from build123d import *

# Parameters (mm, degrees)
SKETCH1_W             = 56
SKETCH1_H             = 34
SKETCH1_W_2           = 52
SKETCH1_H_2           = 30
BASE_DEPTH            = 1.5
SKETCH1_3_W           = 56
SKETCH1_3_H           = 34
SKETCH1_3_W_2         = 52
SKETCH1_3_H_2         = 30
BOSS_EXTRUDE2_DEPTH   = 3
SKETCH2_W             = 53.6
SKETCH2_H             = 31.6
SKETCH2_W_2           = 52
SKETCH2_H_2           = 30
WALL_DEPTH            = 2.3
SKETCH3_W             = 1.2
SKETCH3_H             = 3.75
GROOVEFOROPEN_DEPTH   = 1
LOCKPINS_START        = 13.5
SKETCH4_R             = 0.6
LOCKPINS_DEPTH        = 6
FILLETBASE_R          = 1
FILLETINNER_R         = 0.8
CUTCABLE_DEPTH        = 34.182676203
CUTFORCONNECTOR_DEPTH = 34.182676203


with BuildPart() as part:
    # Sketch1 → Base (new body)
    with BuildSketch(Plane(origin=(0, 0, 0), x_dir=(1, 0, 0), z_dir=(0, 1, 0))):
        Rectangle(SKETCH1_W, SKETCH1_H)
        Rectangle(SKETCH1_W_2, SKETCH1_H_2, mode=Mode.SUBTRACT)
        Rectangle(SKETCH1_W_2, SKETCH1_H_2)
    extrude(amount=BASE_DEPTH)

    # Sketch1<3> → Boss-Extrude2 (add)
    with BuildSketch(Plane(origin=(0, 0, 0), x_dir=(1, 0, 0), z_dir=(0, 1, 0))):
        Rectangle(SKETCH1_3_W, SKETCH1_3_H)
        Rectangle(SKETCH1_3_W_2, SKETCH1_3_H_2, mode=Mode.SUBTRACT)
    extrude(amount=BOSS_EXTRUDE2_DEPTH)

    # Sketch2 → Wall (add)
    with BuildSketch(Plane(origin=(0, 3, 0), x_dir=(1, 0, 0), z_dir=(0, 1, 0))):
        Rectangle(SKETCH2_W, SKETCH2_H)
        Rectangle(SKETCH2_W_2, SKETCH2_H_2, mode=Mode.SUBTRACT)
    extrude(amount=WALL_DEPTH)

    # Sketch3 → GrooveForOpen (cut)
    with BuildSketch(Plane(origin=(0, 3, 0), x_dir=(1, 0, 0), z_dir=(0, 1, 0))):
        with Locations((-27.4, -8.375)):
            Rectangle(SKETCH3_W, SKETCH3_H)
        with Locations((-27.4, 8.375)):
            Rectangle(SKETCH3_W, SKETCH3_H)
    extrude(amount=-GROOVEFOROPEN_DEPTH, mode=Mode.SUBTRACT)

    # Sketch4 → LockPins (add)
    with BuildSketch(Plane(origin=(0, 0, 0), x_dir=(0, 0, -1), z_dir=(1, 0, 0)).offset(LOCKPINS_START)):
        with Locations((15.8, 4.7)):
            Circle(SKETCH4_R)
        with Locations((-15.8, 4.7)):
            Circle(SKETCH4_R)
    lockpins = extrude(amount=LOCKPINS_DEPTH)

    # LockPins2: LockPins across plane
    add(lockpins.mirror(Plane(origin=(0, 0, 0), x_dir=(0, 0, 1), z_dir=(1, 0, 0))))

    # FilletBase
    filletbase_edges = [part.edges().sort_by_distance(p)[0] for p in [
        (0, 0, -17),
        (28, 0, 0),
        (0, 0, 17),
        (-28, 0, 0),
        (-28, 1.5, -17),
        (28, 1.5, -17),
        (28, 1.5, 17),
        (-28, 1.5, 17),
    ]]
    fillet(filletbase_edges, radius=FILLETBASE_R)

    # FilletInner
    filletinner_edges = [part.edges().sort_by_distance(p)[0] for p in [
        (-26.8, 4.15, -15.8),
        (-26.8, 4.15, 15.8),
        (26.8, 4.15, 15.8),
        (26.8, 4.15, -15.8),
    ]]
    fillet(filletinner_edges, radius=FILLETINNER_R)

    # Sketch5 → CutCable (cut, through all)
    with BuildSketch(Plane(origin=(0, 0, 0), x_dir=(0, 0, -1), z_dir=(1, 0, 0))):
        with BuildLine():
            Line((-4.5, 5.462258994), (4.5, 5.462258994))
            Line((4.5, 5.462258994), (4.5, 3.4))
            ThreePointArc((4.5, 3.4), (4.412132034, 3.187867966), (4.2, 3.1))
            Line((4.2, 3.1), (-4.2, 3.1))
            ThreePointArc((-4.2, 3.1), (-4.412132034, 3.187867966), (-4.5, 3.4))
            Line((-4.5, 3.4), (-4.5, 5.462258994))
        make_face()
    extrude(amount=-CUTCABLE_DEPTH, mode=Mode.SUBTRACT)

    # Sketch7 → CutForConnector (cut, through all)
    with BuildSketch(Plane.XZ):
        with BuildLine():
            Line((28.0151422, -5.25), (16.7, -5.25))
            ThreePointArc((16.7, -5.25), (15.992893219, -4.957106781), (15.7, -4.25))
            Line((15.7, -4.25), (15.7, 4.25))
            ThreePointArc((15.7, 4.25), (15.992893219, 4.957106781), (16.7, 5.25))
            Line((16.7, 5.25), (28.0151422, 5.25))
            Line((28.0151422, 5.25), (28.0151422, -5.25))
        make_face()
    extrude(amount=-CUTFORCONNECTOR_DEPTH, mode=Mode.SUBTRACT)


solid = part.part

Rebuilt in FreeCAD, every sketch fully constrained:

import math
import FreeCAD as App
import Part
import Sketcher

V = App.Vector


def edges_at(feature, points):
    """Names of the edges that pass closest to the given points."""
    edges = feature.Shape.Edges
    near = lambda p: min(range(len(edges)), key=lambda i: edges[i].distToShape(Part.Vertex(*p))[0])
    return sorted({f"Edge{near(p) + 1}" for p in points})


def add_polygon(sketch, points):
    """Adds a closed chain of lines whose ends are joined by coincident constraints."""
    first, n = sketch.GeometryCount, len(points)
    for a, b in zip(points, points[1:] + points[:1]):
        sketch.addGeometry(Part.LineSegment(App.Vector(*a, 0), App.Vector(*b, 0)), False)
    for i in range(n):
        sketch.addConstraint(Sketcher.Constraint("Coincident", first + i, 2, first + (i + 1) % n, 1))

doc = App.newDocument("Part")
params = doc.addObject("Spreadsheet::Sheet", "Params")
for row, (alias, value) in enumerate([
    ("sketch1_width", "56 mm"),
    ("sketch1_height", "34 mm"),
    ("pad1_length", "1.5 mm"),
    ("sketch2_width", "56 mm"),
    ("sketch2_width2", "52 mm"),
    ("sketch2_height", "34 mm"),
    ("sketch2_height2", "30 mm"),
    ("pad2_length", "3 mm"),
    ("sketch3_width", "52 mm"),
    ("sketch3_height", "30 mm"),
    ("sketch3_width2", "53.6 mm"),
    ("sketch3_height2", "31.6 mm"),
    ("pad3_length", "2.3 mm"),
    ("sketch4_width", "1.2 mm"),
    ("sketch4_height", "3.75 mm"),
    ("pocket1_length", "1 mm"),
    ("sketch5_diameter", "1.2 mm"),
    ("pad4_length", "6 mm"),
    ("fillet_radius", "1 mm"),
    ("fillet2_radius", "0.8 mm"),
    ("sketch6_radius", "0.3 mm"),
    ("sketch6_height", "9 mm"),
    ("sketch7_radius", "1 mm"),
    ("sketch7_height", "10.5 mm"),
], start=1):
    params.set(f"A{row}", alias)
    params.set(f"B{row}", "=" + value)
    params.setAlias(f"B{row}", alias)

body = doc.addObject("PartDesign::Body", "Body")

sketch1 = doc.addObject("Sketcher::SketchObject", "Sketch")
body.addObject(sketch1)
sketch1.AttachmentSupport = (doc.XZ_Plane, [""])
sketch1.MapMode = "FlatFace"
add_polygon(sketch1, [(-28, -17), (-28, 17), (28, 17), (28, -17)])
sketch1.addConstraint(Sketcher.Constraint("Vertical", 0))
sketch1.addConstraint(Sketcher.Constraint("Horizontal", 1))
sketch1.addConstraint(Sketcher.Constraint("Vertical", 2))
sketch1.addConstraint(Sketcher.Constraint("Horizontal", 3))
sketch1.addConstraint(Sketcher.Constraint("Symmetric", 0, 2, 2, 2, -1, 1))
sketch1.addConstraint(Sketcher.Constraint("DistanceX", 1, 1, 1, 2, 56.0))
sketch1.addConstraint(Sketcher.Constraint("DistanceY", 0, 1, 0, 2, 34.0))
sketch1.setExpression("Constraints[9]", "Params.sketch1_width")
sketch1.setExpression("Constraints[10]", "Params.sketch1_height")
pad1 = doc.addObject("PartDesign::Pad", "Pad")
body.addObject(pad1)
pad1.Profile = sketch1
pad1.setExpression("Length", "Params.pad1_length")
pad1.Reversed = True

sketch2 = doc.addObject("Sketcher::SketchObject", "Sketch001")
body.addObject(sketch2)
sketch2.AttachmentSupport = (doc.XZ_Plane, [""])
sketch2.MapMode = "FlatFace"
add_polygon(sketch2, [(-28, -17), (-28, 17), (28, 17), (28, -17)])
add_polygon(sketch2, [(26, 15), (-26, 15), (-26, -15), (26, -15)])
sketch2.addConstraint(Sketcher.Constraint("Vertical", 0))
sketch2.addConstraint(Sketcher.Constraint("Horizontal", 1))
sketch2.addConstraint(Sketcher.Constraint("Vertical", 2))
sketch2.addConstraint(Sketcher.Constraint("Horizontal", 3))
sketch2.addConstraint(Sketcher.Constraint("Horizontal", 4))
sketch2.addConstraint(Sketcher.Constraint("Vertical", 5))
sketch2.addConstraint(Sketcher.Constraint("Horizontal", 6))
sketch2.addConstraint(Sketcher.Constraint("Vertical", 7))
sketch2.addConstraint(Sketcher.Constraint("Symmetric", 0, 2, 2, 2, -1, 1))
sketch2.addConstraint(Sketcher.Constraint("Symmetric", 4, 2, 6, 2, -1, 1))
sketch2.addConstraint(Sketcher.Constraint("DistanceX", 1, 1, 1, 2, 56.0))
sketch2.addConstraint(Sketcher.Constraint("DistanceX", 4, 2, 4, 1, 52.0))
sketch2.addConstraint(Sketcher.Constraint("DistanceY", 0, 1, 0, 2, 34.0))
sketch2.addConstraint(Sketcher.Constraint("DistanceY", 5, 2, 5, 1, 30.0))
sketch2.setExpression("Constraints[18]", "Params.sketch2_width")
sketch2.setExpression("Constraints[19]", "Params.sketch2_width2")
sketch2.setExpression("Constraints[20]", "Params.sketch2_height")
sketch2.setExpression("Constraints[21]", "Params.sketch2_height2")
pad2 = doc.addObject("PartDesign::Pad", "Pad001")
body.addObject(pad2)
pad2.Profile = sketch2
pad2.setExpression("Length", "Params.pad2_length")
pad2.Reversed = True

sketch3 = doc.addObject("Sketcher::SketchObject", "Sketch002")
body.addObject(sketch3)
sketch3.AttachmentSupport = (doc.XZ_Plane, [""])
sketch3.MapMode = "FlatFace"
sketch3.AttachmentOffset = App.Placement(V(0, 0, -3), App.Rotation())
add_polygon(sketch3, [(-27, -16), (-27, 16), (27, 16), (27, -16)])
add_polygon(sketch3, [(26, 15), (-26, 15), (-26, -15), (26, -15)])
sketch3.addConstraint(Sketcher.Constraint("Vertical", 0))
sketch3.addConstraint(Sketcher.Constraint("Horizontal", 1))
sketch3.addConstraint(Sketcher.Constraint("Vertical", 2))
sketch3.addConstraint(Sketcher.Constraint("Horizontal", 3))
sketch3.addConstraint(Sketcher.Constraint("Horizontal", 4))
sketch3.addConstraint(Sketcher.Constraint("Vertical", 5))
sketch3.addConstraint(Sketcher.Constraint("Horizontal", 6))
sketch3.addConstraint(Sketcher.Constraint("Vertical", 7))
sketch3.addConstraint(Sketcher.Constraint("Symmetric", 0, 2, 2, 2, -1, 1))
sketch3.addConstraint(Sketcher.Constraint("Symmetric", 4, 2, 6, 2, -1, 1))
sketch3.addConstraint(Sketcher.Constraint("DistanceX", 4, 2, 4, 1, 52.0))
sketch3.addConstraint(Sketcher.Constraint("DistanceY", 5, 2, 5, 1, 30.0))
sketch3.addConstraint(Sketcher.Constraint("DistanceX", 1, 1, 1, 2, 53.6))
sketch3.addConstraint(Sketcher.Constraint("DistanceY", 0, 1, 0, 2, 31.6))
sketch3.setExpression("Constraints[18]", "Params.sketch3_width")
sketch3.setExpression("Constraints[19]", "Params.sketch3_height")
sketch3.setExpression("Constraints[20]", "Params.sketch3_width2")
sketch3.setExpression("Constraints[21]", "Params.sketch3_height2")
pad3 = doc.addObject("PartDesign::Pad", "Pad002")
body.addObject(pad3)
pad3.Profile = sketch3
pad3.setExpression("Length", "Params.pad3_length")
pad3.Reversed = True

sketch4 = doc.addObject("Sketcher::SketchObject", "Sketch003")
body.addObject(sketch4)
sketch4.AttachmentSupport = (doc.XZ_Plane, [""])
sketch4.MapMode = "FlatFace"
sketch4.AttachmentOffset = App.Placement(V(0, 0, -3), App.Rotation())
add_polygon(sketch4, [(-28, 6.5), (-28, 10.2), (-26.8, 10.2), (-26.8, 6.5)])
add_polygon(sketch4, [(-28, -10.2), (-28, -6.5), (-26.8, -6.5), (-26.8, -10.2)])
sketch4.addConstraint(Sketcher.Constraint("Vertical", 0))
sketch4.addConstraint(Sketcher.Constraint("Horizontal", 1))
sketch4.addConstraint(Sketcher.Constraint("Vertical", 2))
sketch4.addConstraint(Sketcher.Constraint("Horizontal", 3))
sketch4.addConstraint(Sketcher.Constraint("Vertical", 4))
sketch4.addConstraint(Sketcher.Constraint("Horizontal", 5))
sketch4.addConstraint(Sketcher.Constraint("Vertical", 6))
sketch4.addConstraint(Sketcher.Constraint("Horizontal", 7))
sketch4.addConstraint(Sketcher.Constraint("Symmetric", 3, 2, 4, 2, -1))
sketch4.addConstraint(Sketcher.Constraint("Symmetric", 1, 2, 6, 2, -1))
sketch4.addConstraint(Sketcher.Constraint("DistanceX", 1, 1, 1, 2, 1.2))
sketch4.addConstraint(Sketcher.Constraint("DistanceX", 0, 2, -1, 1, 28.0))
sketch4.addConstraint(Sketcher.Constraint("DistanceY", 4, 2, 3, 2, 13.0))
sketch4.addConstraint(Sketcher.Constraint("DistanceY", 0, 1, 0, 2, 3.75))
sketch4.setExpression("Constraints[18]", "Params.sketch4_width")
sketch4.setExpression("Constraints[21]", "Params.sketch4_height")
pocket1 = doc.addObject("PartDesign::Pocket", "Pocket")
body.addObject(pocket1)
pocket1.Profile = sketch4
pocket1.setExpression("Length", "Params.pocket1_length")
pocket1.Reversed = True

sketch5 = doc.addObject("Sketcher::SketchObject", "Sketch004")
body.addObject(sketch5)
sketch5.AttachmentSupport = (doc.YZ_Plane, [""])
sketch5.MapMode = "FlatFace"
sketch5.AttachmentOffset = App.Placement(V(0, 0, 13.5), App.Rotation())
sketch5.addGeometry(Part.Circle(V(4.7, -15.8, 0), V(0, 0, 1), 0.6), False)
sketch5.addGeometry(Part.Circle(V(4.7, 15.8, 0), V(0, 0, 1), 0.6), False)
sketch5.addConstraint(Sketcher.Constraint("Equal", 0, 1))
sketch5.addConstraint(Sketcher.Constraint("Symmetric", 0, 3, 1, 3, -1))
sketch5.addConstraint(Sketcher.Constraint("Diameter", 0, 1.2))
sketch5.addConstraint(Sketcher.Constraint("DistanceX", -1, 1, 0, 3, 4.7))
sketch5.addConstraint(Sketcher.Constraint("DistanceY", 0, 3, -1, 1, 15.8))
sketch5.setExpression("Constraints[2]", "Params.sketch5_diameter")
pad4 = doc.addObject("PartDesign::Pad", "Pad003")
body.addObject(pad4)
pad4.Profile = sketch5
pad4.setExpression("Length", "Params.pad4_length")
doc.recompute()

mirrored = doc.addObject("PartDesign::Mirrored", "Mirrored")
body.addObject(mirrored)
mirrored.Originals = [pad4]
mirrored.MirrorPlane = (doc.YZ_Plane, [""])
body.Tip = mirrored
doc.recompute()

fillet = doc.addObject("PartDesign::Fillet", "Fillet")
body.addObject(fillet)
fillet.Base = (mirrored, edges_at(mirrored, [
    (0, 0, -17),
    (28, 0, 0),
    (0, 0, 17),
    (-28, 0, 0),
    (-28, 1.5, -17),
    (28, 1.5, -17),
    (28, 1.5, 17),
    (-28, 1.5, 17),
]))
fillet.setExpression("Radius", "Params.fillet_radius")
doc.recompute()

fillet2 = doc.addObject("PartDesign::Fillet", "Fillet001")
body.addObject(fillet2)
fillet2.Base = (fillet, edges_at(fillet, [
    (-26.8, 4.15, -15.8),
    (-26.8, 4.15, 15.8),
    (26.8, 4.15, 15.8),
    (26.8, 4.15, -15.8),
]))
fillet2.setExpression("Radius", "Params.fillet2_radius")

sketch6 = doc.addObject("Sketcher::SketchObject", "Sketch005")
body.addObject(sketch6)
sketch6.AttachmentSupport = (doc.YZ_Plane, [""])
sketch6.MapMode = "FlatFace"
sketch6.addGeometry(Part.LineSegment(V(5.46, -4.5, 0), V(5.46, 4.5, 0)), False)
sketch6.addGeometry(Part.LineSegment(V(5.46, 4.5, 0), V(3.4, 4.5, 0)), False)
sketch6.addGeometry(Part.ArcOfCircle(Part.Circle(V(3.4, 4.2, 0), V(0, 0, 1), 0.3), math.radians(90), math.radians(180)), False)
sketch6.addGeometry(Part.LineSegment(V(3.1, 4.2, 0), V(3.1, -4.2, 0)), False)
sketch6.addGeometry(Part.ArcOfCircle(Part.Circle(V(3.4, -4.2, 0), V(0, 0, 1), 0.3), math.radians(-180), math.radians(-90)), False)
sketch6.addGeometry(Part.LineSegment(V(3.4, -4.5, 0), V(5.46, -4.5, 0)), False)
sketch6.addConstraint(Sketcher.Constraint("Coincident", 0, 2, 1, 1))
sketch6.addConstraint(Sketcher.Constraint("Tangent", 1, 2, 2, 1))
sketch6.addConstraint(Sketcher.Constraint("Tangent", 2, 2, 3, 1))
sketch6.addConstraint(Sketcher.Constraint("Tangent", 3, 2, 4, 1))
sketch6.addConstraint(Sketcher.Constraint("Tangent", 4, 2, 5, 1))
sketch6.addConstraint(Sketcher.Constraint("Coincident", 5, 2, 0, 1))
sketch6.addConstraint(Sketcher.Constraint("Vertical", 0))
sketch6.addConstraint(Sketcher.Constraint("Horizontal", 1))
sketch6.addConstraint(Sketcher.Constraint("Vertical", 3))
sketch6.addConstraint(Sketcher.Constraint("Horizontal", 5))
sketch6.addConstraint(Sketcher.Constraint("Equal", 2, 4))
sketch6.addConstraint(Sketcher.Constraint("Radius", 2, 0.3))
sketch6.addConstraint(Sketcher.Constraint("DistanceY", 0, 1, 0, 2, 9.0))
sketch6.addConstraint(Sketcher.Constraint("DistanceX", -1, 1, 2, 3, 3.4))
sketch6.addConstraint(Sketcher.Constraint("DistanceY", -1, 1, 2, 3, 4.2))
sketch6.addConstraint(Sketcher.Constraint("DistanceX", 1, 2, 1, 1, 2.062259))
sketch6.setExpression("Constraints[11]", "Params.sketch6_radius")
sketch6.setExpression("Constraints[12]", "Params.sketch6_height")
pocket2 = doc.addObject("PartDesign::Pocket", "Pocket001")
body.addObject(pocket2)
pocket2.Profile = sketch6
pocket2.Type = "ThroughAll"

sketch7 = doc.addObject("Sketcher::SketchObject", "Sketch006")
body.addObject(sketch7)
sketch7.AttachmentSupport = (doc.XZ_Plane, [""])
sketch7.MapMode = "FlatFace"
sketch7.addGeometry(Part.LineSegment(V(16.7, -5.2, 0), V(28, -5.2, 0)), False)
sketch7.addGeometry(Part.LineSegment(V(28, -5.2, 0), V(28, 5.2, 0)), False)
sketch7.addGeometry(Part.LineSegment(V(28, 5.2, 0), V(16.7, 5.2, 0)), False)
sketch7.addGeometry(Part.ArcOfCircle(Part.Circle(V(16.7, 4.2, 0), V(0, 0, 1), 1), math.radians(90), math.radians(180)), False)
sketch7.addGeometry(Part.LineSegment(V(15.7, 4.2, 0), V(15.7, -4.2, 0)), False)
sketch7.addGeometry(Part.ArcOfCircle(Part.Circle(V(16.7, -4.2, 0), V(0, 0, 1), 1), math.radians(-180), math.radians(-90)), False)
sketch7.addConstraint(Sketcher.Constraint("Coincident", 0, 2, 1, 1))
sketch7.addConstraint(Sketcher.Constraint("Coincident", 1, 2, 2, 1))
sketch7.addConstraint(Sketcher.Constraint("Tangent", 2, 2, 3, 1))
sketch7.addConstraint(Sketcher.Constraint("Tangent", 3, 2, 4, 1))
sketch7.addConstraint(Sketcher.Constraint("Tangent", 4, 2, 5, 1))
sketch7.addConstraint(Sketcher.Constraint("Tangent", 5, 2, 0, 1))
sketch7.addConstraint(Sketcher.Constraint("Horizontal", 0))
sketch7.addConstraint(Sketcher.Constraint("Vertical", 1))
sketch7.addConstraint(Sketcher.Constraint("Horizontal", 2))
sketch7.addConstraint(Sketcher.Constraint("Vertical", 4))
sketch7.addConstraint(Sketcher.Constraint("Equal", 3, 5))
sketch7.addConstraint(Sketcher.Constraint("Radius", 3, 1.0))
sketch7.addConstraint(Sketcher.Constraint("DistanceY", 1, 1, 1, 2, 10.5))
sketch7.addConstraint(Sketcher.Constraint("DistanceX", -1, 1, 3, 3, 16.7))
sketch7.addConstraint(Sketcher.Constraint("DistanceY", -1, 1, 3, 3, 4.25))
sketch7.addConstraint(Sketcher.Constraint("DistanceX", 0, 1, 0, 2, 11.315142))
sketch7.setExpression("Constraints[11]", "Params.sketch7_radius")
sketch7.setExpression("Constraints[12]", "Params.sketch7_height")
pocket3 = doc.addObject("PartDesign::Pocket", "Pocket002")
body.addObject(pocket3)
pocket3.Profile = sketch7
pocket3.Type = "ThroughAll"

doc.recompute()
